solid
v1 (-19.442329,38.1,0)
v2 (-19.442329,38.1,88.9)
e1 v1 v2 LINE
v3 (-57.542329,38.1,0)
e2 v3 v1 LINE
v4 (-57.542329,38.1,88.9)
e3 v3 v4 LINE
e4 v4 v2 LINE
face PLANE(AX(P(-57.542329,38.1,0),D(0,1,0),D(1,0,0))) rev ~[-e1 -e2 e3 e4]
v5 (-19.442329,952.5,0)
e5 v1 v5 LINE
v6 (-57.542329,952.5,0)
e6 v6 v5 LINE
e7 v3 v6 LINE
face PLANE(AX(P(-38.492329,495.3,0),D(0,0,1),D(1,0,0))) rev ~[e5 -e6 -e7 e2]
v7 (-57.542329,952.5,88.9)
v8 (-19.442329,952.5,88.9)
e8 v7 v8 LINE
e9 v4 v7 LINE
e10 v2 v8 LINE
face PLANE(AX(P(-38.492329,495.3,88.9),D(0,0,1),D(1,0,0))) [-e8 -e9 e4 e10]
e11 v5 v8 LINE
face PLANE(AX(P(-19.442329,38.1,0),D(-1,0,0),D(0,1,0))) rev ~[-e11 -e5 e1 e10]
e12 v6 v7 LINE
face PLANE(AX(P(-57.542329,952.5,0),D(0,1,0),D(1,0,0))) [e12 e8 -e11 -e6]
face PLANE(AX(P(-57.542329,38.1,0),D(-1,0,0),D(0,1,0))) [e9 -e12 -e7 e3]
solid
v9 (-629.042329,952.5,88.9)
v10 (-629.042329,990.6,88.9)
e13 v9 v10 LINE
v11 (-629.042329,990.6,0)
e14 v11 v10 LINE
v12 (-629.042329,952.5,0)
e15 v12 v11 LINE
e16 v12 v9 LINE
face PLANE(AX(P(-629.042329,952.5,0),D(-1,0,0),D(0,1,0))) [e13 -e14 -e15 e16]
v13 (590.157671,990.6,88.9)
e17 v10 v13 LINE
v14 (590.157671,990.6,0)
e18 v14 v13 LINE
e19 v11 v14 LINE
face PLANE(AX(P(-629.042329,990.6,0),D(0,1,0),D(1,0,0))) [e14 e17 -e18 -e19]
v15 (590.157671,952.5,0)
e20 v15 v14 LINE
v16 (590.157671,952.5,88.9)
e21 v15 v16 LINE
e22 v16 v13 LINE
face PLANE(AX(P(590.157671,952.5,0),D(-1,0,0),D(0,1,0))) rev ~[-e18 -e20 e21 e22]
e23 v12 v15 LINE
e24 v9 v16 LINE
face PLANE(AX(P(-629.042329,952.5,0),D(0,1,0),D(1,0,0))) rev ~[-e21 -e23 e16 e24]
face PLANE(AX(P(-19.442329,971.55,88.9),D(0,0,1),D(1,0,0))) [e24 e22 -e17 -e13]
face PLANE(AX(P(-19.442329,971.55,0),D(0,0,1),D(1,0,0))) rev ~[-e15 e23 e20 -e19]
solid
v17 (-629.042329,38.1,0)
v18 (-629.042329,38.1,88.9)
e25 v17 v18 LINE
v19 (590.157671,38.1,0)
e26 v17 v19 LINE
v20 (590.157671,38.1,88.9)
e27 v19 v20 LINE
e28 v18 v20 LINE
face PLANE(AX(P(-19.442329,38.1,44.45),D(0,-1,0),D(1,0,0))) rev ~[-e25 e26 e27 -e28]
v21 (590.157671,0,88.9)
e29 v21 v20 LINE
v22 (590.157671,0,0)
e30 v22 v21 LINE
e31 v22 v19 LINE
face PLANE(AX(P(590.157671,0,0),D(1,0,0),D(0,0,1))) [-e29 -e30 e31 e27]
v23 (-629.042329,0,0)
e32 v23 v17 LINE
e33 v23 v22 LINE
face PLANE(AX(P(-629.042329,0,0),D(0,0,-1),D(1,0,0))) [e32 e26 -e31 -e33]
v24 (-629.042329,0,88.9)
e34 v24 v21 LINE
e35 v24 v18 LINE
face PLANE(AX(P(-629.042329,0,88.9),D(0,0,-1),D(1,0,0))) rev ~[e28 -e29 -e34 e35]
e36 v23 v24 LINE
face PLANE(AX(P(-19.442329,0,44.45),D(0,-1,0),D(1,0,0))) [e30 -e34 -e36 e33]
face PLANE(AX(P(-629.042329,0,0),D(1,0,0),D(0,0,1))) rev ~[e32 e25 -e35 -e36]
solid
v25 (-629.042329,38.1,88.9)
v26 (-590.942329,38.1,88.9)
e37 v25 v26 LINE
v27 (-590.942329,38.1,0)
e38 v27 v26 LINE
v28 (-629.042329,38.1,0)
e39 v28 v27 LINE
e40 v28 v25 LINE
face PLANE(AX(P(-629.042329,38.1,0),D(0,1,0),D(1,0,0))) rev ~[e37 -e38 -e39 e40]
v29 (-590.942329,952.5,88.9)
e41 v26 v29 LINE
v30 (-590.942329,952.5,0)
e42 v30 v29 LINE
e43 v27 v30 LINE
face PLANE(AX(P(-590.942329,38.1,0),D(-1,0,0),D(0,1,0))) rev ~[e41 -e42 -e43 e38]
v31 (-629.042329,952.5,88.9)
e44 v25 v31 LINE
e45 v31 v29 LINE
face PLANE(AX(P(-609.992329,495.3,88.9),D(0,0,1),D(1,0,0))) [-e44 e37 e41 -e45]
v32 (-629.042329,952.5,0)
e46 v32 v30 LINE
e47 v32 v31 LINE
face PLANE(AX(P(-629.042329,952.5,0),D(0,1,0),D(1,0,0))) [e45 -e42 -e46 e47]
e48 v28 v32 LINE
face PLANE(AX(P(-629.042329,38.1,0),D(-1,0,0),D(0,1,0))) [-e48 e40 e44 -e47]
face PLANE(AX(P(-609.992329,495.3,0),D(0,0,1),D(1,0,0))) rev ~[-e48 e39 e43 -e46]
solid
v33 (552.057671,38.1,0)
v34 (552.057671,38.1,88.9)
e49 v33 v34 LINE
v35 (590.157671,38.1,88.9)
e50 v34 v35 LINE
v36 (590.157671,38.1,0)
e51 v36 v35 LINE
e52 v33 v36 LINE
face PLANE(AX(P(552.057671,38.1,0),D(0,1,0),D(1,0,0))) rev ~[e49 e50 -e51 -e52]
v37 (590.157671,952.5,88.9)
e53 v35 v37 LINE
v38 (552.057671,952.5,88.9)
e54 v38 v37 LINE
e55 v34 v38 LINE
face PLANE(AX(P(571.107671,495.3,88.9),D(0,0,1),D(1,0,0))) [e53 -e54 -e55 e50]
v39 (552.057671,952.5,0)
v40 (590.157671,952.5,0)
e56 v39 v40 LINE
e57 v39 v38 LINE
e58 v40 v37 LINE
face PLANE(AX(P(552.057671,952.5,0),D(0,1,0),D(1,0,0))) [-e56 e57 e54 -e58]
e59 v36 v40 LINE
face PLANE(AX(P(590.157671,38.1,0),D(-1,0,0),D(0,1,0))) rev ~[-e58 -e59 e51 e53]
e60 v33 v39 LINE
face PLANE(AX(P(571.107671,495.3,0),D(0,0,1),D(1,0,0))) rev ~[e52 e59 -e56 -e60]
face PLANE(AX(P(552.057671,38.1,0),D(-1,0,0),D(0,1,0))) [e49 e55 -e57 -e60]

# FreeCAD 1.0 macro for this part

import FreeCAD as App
import Part
import Sketcher

V = App.Vector
Q = App.Units.Quantity

doc = App.newDocument("Part")
body = doc.addObject("PartDesign::Body", "Body")

# Sketch on XZ plane
sketch1 = doc.addObject("Sketcher::SketchObject", "Sketch")
body.addObject(sketch1)
sketch1.AttachmentSupport = (doc.XZ_Plane, [""])
sketch1.MapMode = "FlatFace"
sketch1.addGeometry(Part.LineSegment(V(-629, 89, 0), V(-629, 0, 0)), False)
sketch1.addGeometry(Part.LineSegment(V(-629, 0, 0), V(590, 0, 0)), False)
sketch1.addGeometry(Part.LineSegment(V(590, 0, 0), V(590, 89, 0)), False)
sketch1.addGeometry(Part.LineSegment(V(590, 89, 0), V(-629, 89, 0)), False)
sketch1.addConstraint(Sketcher.Constraint("Coincident", 0, 2, 1, 1))
sketch1.addConstraint(Sketcher.Constraint("Coincident", 1, 2, 2, 1))
sketch1.addConstraint(Sketcher.Constraint("Coincident", 2, 2, 3, 1))
sketch1.addConstraint(Sketcher.Constraint("Coincident", 3, 2, 0, 1))
sketch1.addConstraint(Sketcher.Constraint("Vertical", 0))
sketch1.addConstraint(Sketcher.Constraint("Horizontal", 1))
sketch1.addConstraint(Sketcher.Constraint("Vertical", 2))
sketch1.addConstraint(Sketcher.Constraint("Horizontal", 3))
sketch1.addConstraint(Sketcher.Constraint("PointOnObject", 0, 2, -1))
sketch1.addConstraint(Sketcher.Constraint("DistanceX", 1, 1, 1, 2, Q("48 in")))
sketch1.addConstraint(Sketcher.Constraint("DistanceY", 0, 2, 0, 1, Q("3.5 in")))
sketch1.addConstraint(Sketcher.Constraint("DistanceX", 0, 2, -1, 1, Q("629.042329 mm")))
pad1 = doc.addObject("PartDesign::Pad", "Pad")
body.addObject(pad1)
pad1.Profile = sketch1
pad1.Length = Q("1.5 in")
pad1.Reversed = True
body2 = doc.addObject("PartDesign::Body", "Body001")
body2.AllowCompound = True

# Sketch on XY plane
sketch2 = doc.addObject("Sketcher::SketchObject", "Sketch001")
body2.addObject(sketch2)
sketch2.AttachmentSupport = (doc.getObject("XY_Plane001"), [""])
sketch2.MapMode = "FlatFace"
sketch2.addGeometry(Part.LineSegment(V(-629, 952, 0), V(-629, 38, 0)), False)
sketch2.addGeometry(Part.LineSegment(V(-629, 38, 0), V(-591, 38, 0)), False)
sketch2.addGeometry(Part.LineSegment(V(-591, 38, 0), V(-591, 952, 0)), False)
sketch2.addGeometry(Part.LineSegment(V(-591, 952, 0), V(-629, 952, 0)), False)
sketch2.addGeometry(Part.LineSegment(V(552, 952, 0), V(552, 38, 0)), False)
sketch2.addGeometry(Part.LineSegment(V(552, 38, 0), V(590, 38, 0)), False)
sketch2.addGeometry(Part.LineSegment(V(590, 38, 0), V(590, 952, 0)), False)
sketch2.addGeometry(Part.LineSegment(V(590, 952, 0), V(552, 952, 0)), False)
sketch2.addGeometry(Part.LineSegment(V(-58, 952, 0), V(-58, 38, 0)), False)
sketch2.addGeometry(Part.LineSegment(V(-58, 38, 0), V(-19, 38, 0)), False)
sketch2.addGeometry(Part.LineSegment(V(-19, 38, 0), V(-19, 952, 0)), False)
sketch2.addGeometry(Part.LineSegment(V(-19, 952, 0), V(-58, 952, 0)), False)
sketch2.addConstraint(Sketcher.Constraint("Coincident", 0, 2, 1, 1))
sketch2.addConstraint(Sketcher.Constraint("Coincident", 1, 2, 2, 1))
sketch2.addConstraint(Sketcher.Constraint("Coincident", 2, 2, 3, 1))
sketch2.addConstraint(Sketcher.Constraint("Coincident", 3, 2, 0, 1))
sketch2.addConstraint(Sketcher.Constraint("Coincident", 4, 2, 5, 1))
sketch2.addConstraint(Sketcher.Constraint("Coincident", 5, 2, 6, 1))
sketch2.addConstraint(Sketcher.Constraint("Coincident", 6, 2, 7, 1))
sketch2.addConstraint(Sketcher.Constraint("Coincident", 7, 2, 4, 1))
sketch2.addConstraint(Sketcher.Constraint("Coincident", 8, 2, 9, 1))
sketch2.addConstraint(Sketcher.Constraint("Coincident", 9, 2, 10, 1))
sketch2.addConstraint(Sketcher.Constraint("Coincident", 10, 2, 11, 1))
sketch2.addConstraint(Sketcher.Constraint("Coincident", 11, 2, 8, 1))
sketch2.addConstraint(Sketcher.Constraint("Vertical", 0))
sketch2.addConstraint(Sketcher.Constraint("Horizontal", 1))
sketch2.addConstraint(Sketcher.Constraint("Vertical", 2))
sketch2.addConstraint(Sketcher.Constraint("Horizontal", 3))
sketch2.addConstraint(Sketcher.Constraint("Vertical", 4))
sketch2.addConstraint(Sketcher.Constraint("Horizontal", 5))
sketch2.addConstraint(Sketcher.Constraint("Vertical", 6))
sketch2.addConstraint(Sketcher.Constraint("Horizontal", 7))
sketch2.addConstraint(Sketcher.Constraint("Vertical", 8))
sketch2.addConstraint(Sketcher.Constraint("Horizontal", 9))
sketch2.addConstraint(Sketcher.Constraint("Vertical", 10))
sketch2.addConstraint(Sketcher.Constraint("Horizontal", 11))
sketch2.addConstraint(Sketcher.Constraint("Horizontal", 1, 2, 4, 2))
sketch2.addConstraint(Sketcher.Constraint("Horizontal", 3, 2, 6, 2))
sketch2.addConstraint(Sketcher.Constraint("Horizontal", 5, 2, 8, 2))
sketch2.addConstraint(Sketcher.Constraint("Horizontal", 7, 2, 10, 2))
sketch2.addConstraint(Sketcher.Constraint("Equal", 3, 5))
sketch2.addConstraint(Sketcher.Constraint("Equal", 7, 9))
sketch2.addConstraint(Sketcher.Constraint("DistanceY", 0, 2, 0, 1, Q("36 in")))
sketch2.addConstraint(Sketcher.Constraint("DistanceX", 1, 1, 1, 2, Q("1.5 in")))
sketch2.addConstraint(Sketcher.Constraint("DistanceX", 1, 2, 4, 2, Q("45 in")))
sketch2.addConstraint(Sketcher.Constraint("DistanceX", 1, 2, 8, 2, Q("21 in")))
sketch2.addConstraint(Sketcher.Constraint("DistanceY", -1, 1, 0, 2, Q("1.5 in")))
sketch2.addConstraint(Sketcher.Constraint("DistanceX", 0, 2, -1, 1, Q("629.042329 mm")))
pad2 = doc.addObject("PartDesign::Pad", "Pad001")
body2.addObject(pad2)
pad2.Profile = sketch2
pad2.Length = Q("3.5 in")
body3 = doc.addObject("PartDesign::Body", "Body002")

# Sketch on XY plane
sketch3 = doc.addObject("Sketcher::SketchObject", "Sketch002")
body3.addObject(sketch3)
sketch3.AttachmentSupport = (doc.getObject("XY_Plane002"), [""])
sketch3.MapMode = "FlatFace"
sketch3.addGeometry(Part.LineSegment(V(-629, 991, 0), V(-629, 952, 0)), False)
sketch3.addGeometry(Part.LineSegment(V(-629, 952, 0), V(590, 952, 0)), False)
sketch3.addGeometry(Part.LineSegment(V(590, 952, 0), V(590, 991, 0)), False)
sketch3.addGeometry(Part.LineSegment(V(590, 991, 0), V(-629, 991, 0)), False)
sketch3.addConstraint(Sketcher.Constraint("Coincident", 0, 2, 1, 1))
sketch3.addConstraint(Sketcher.Constraint("Coincident", 1, 2, 2, 1))
sketch3.addConstraint(Sketcher.Constraint("Coincident", 2, 2, 3, 1))
sketch3.addConstraint(Sketcher.Constraint("Coincident", 3, 2, 0, 1))
sketch3.addConstraint(Sketcher.Constraint("Vertical", 0))
sketch3.addConstraint(Sketcher.Constraint("Horizontal", 1))
sketch3.addConstraint(Sketcher.Constraint("Vertical", 2))
sketch3.addConstraint(Sketcher.Constraint("Horizontal", 3))
sketch3.addConstraint(Sketcher.Constraint("DistanceX", 1, 1, 1, 2, Q("48 in")))
sketch3.addConstraint(Sketcher.Constraint("DistanceY", 0, 2, 0, 1, Q("1.5 in")))
sketch3.addConstraint(Sketcher.Constraint("DistanceY", -1, 1, 2, 2, Q("39 in")))
sketch3.addConstraint(Sketcher.Constraint("DistanceX", 0, 2, -1, 1, Q("629.042329 mm")))
pad3 = doc.addObject("PartDesign::Pad", "Pad002")
body3.addObject(pad3)
pad3.Profile = sketch3
pad3.Length = Q("3.5 in")

doc.recompute()
